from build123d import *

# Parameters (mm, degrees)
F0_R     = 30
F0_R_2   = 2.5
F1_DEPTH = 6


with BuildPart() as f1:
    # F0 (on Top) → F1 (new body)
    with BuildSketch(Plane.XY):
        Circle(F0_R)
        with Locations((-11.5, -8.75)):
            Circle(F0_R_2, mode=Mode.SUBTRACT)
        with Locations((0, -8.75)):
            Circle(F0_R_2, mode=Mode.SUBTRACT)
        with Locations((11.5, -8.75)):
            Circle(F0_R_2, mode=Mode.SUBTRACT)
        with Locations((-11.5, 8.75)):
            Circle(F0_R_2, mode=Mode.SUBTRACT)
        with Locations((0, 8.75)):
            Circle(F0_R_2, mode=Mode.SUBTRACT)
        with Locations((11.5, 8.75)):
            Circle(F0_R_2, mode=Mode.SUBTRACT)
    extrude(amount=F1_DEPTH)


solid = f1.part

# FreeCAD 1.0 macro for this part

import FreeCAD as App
import Part
import Sketcher

V = App.Vector

doc = App.newDocument("Part")
params = doc.addObject("Spreadsheet::Sheet", "Params")
for row, (alias, value) in enumerate([
    ("sketch1_diameter", "60 mm"),
    ("sketch1_diameter2", "5 mm"),
    ("pad1_length", "6 mm"),
], start=1):
    params.set(f"A{row}", alias)
    params.set(f"B{row}", "=" + value)
    params.setAlias(f"B{row}", alias)

body = doc.addObject("PartDesign::Body", "Body")

sketch1 = doc.addObject("Sketcher::SketchObject", "Sketch")
body.addObject(sketch1)
sketch1.AttachmentSupport = (doc.XY_Plane, [""])
sketch1.MapMode = "FlatFace"
sketch1.addGeometry([
    Part.Circle(V(0, 0, 0), V(0, 0, 1), 30),
    Part.Circle(V(-11.5, -8.8, 0), V(0, 0, 1), 2.5),
    Part.Circle(V(0, -8.8, 0), V(0, 0, 1), 2.5),
    Part.Circle(V(11.5, -8.8, 0), V(0, 0, 1), 2.5),
    Part.Circle(V(-11.5, 8.8, 0), V(0, 0, 1), 2.5),
    Part.Circle(V(0, 8.8, 0), V(0, 0, 1), 2.5),
    Part.Circle(V(11.5, 8.8, 0), V(0, 0, 1), 2.5),
], False)
sketch1.addConstraint([
    Sketcher.Constraint("Coincident", 0, 3, -1, 1),
    Sketcher.Constraint("Equal", 1, 2),
    Sketcher.Constraint("Equal", 2, 3),
    Sketcher.Constraint("Equal", 3, 4),
    Sketcher.Constraint("Equal", 4, 5),
    Sketcher.Constraint("Equal", 5, 6),
    Sketcher.Constraint("Symmetric", 3, 3, 4, 3, -1, 1),
    Sketcher.Constraint("Symmetric", 2, 3, 5, 3, -1, 1),
    Sketcher.Constraint("Symmetric", 1, 3, 6, 3, -1, 1),
    Sketcher.Constraint("Symmetric", 1, 3, 3, 3, -2),
    Sketcher.Constraint("PointOnObject", 2, 3, -2),
    Sketcher.Constraint("Horizontal", 1, 3, 2, 3),
    Sketcher.Constraint("Diameter", 0, 60.0),
    Sketcher.Constraint("Diameter", 1, 5.0),
    Sketcher.Constraint("DistanceX", 1, 3, 3, 3, 23.0),
    Sketcher.Constraint("DistanceY", 1, 3, 4, 3, 17.5),
])
sketch1.setExpression("Constraints[12]", "Params.sketch1_diameter")
sketch1.setExpression("Constraints[13]", "Params.sketch1_diameter2")
pad1 = doc.addObject("PartDesign::Pad", "Pad")
body.addObject(pad1)
pad1.Profile = sketch1
pad1.setExpression("Length", "Params.pad1_length")

doc.recompute()
